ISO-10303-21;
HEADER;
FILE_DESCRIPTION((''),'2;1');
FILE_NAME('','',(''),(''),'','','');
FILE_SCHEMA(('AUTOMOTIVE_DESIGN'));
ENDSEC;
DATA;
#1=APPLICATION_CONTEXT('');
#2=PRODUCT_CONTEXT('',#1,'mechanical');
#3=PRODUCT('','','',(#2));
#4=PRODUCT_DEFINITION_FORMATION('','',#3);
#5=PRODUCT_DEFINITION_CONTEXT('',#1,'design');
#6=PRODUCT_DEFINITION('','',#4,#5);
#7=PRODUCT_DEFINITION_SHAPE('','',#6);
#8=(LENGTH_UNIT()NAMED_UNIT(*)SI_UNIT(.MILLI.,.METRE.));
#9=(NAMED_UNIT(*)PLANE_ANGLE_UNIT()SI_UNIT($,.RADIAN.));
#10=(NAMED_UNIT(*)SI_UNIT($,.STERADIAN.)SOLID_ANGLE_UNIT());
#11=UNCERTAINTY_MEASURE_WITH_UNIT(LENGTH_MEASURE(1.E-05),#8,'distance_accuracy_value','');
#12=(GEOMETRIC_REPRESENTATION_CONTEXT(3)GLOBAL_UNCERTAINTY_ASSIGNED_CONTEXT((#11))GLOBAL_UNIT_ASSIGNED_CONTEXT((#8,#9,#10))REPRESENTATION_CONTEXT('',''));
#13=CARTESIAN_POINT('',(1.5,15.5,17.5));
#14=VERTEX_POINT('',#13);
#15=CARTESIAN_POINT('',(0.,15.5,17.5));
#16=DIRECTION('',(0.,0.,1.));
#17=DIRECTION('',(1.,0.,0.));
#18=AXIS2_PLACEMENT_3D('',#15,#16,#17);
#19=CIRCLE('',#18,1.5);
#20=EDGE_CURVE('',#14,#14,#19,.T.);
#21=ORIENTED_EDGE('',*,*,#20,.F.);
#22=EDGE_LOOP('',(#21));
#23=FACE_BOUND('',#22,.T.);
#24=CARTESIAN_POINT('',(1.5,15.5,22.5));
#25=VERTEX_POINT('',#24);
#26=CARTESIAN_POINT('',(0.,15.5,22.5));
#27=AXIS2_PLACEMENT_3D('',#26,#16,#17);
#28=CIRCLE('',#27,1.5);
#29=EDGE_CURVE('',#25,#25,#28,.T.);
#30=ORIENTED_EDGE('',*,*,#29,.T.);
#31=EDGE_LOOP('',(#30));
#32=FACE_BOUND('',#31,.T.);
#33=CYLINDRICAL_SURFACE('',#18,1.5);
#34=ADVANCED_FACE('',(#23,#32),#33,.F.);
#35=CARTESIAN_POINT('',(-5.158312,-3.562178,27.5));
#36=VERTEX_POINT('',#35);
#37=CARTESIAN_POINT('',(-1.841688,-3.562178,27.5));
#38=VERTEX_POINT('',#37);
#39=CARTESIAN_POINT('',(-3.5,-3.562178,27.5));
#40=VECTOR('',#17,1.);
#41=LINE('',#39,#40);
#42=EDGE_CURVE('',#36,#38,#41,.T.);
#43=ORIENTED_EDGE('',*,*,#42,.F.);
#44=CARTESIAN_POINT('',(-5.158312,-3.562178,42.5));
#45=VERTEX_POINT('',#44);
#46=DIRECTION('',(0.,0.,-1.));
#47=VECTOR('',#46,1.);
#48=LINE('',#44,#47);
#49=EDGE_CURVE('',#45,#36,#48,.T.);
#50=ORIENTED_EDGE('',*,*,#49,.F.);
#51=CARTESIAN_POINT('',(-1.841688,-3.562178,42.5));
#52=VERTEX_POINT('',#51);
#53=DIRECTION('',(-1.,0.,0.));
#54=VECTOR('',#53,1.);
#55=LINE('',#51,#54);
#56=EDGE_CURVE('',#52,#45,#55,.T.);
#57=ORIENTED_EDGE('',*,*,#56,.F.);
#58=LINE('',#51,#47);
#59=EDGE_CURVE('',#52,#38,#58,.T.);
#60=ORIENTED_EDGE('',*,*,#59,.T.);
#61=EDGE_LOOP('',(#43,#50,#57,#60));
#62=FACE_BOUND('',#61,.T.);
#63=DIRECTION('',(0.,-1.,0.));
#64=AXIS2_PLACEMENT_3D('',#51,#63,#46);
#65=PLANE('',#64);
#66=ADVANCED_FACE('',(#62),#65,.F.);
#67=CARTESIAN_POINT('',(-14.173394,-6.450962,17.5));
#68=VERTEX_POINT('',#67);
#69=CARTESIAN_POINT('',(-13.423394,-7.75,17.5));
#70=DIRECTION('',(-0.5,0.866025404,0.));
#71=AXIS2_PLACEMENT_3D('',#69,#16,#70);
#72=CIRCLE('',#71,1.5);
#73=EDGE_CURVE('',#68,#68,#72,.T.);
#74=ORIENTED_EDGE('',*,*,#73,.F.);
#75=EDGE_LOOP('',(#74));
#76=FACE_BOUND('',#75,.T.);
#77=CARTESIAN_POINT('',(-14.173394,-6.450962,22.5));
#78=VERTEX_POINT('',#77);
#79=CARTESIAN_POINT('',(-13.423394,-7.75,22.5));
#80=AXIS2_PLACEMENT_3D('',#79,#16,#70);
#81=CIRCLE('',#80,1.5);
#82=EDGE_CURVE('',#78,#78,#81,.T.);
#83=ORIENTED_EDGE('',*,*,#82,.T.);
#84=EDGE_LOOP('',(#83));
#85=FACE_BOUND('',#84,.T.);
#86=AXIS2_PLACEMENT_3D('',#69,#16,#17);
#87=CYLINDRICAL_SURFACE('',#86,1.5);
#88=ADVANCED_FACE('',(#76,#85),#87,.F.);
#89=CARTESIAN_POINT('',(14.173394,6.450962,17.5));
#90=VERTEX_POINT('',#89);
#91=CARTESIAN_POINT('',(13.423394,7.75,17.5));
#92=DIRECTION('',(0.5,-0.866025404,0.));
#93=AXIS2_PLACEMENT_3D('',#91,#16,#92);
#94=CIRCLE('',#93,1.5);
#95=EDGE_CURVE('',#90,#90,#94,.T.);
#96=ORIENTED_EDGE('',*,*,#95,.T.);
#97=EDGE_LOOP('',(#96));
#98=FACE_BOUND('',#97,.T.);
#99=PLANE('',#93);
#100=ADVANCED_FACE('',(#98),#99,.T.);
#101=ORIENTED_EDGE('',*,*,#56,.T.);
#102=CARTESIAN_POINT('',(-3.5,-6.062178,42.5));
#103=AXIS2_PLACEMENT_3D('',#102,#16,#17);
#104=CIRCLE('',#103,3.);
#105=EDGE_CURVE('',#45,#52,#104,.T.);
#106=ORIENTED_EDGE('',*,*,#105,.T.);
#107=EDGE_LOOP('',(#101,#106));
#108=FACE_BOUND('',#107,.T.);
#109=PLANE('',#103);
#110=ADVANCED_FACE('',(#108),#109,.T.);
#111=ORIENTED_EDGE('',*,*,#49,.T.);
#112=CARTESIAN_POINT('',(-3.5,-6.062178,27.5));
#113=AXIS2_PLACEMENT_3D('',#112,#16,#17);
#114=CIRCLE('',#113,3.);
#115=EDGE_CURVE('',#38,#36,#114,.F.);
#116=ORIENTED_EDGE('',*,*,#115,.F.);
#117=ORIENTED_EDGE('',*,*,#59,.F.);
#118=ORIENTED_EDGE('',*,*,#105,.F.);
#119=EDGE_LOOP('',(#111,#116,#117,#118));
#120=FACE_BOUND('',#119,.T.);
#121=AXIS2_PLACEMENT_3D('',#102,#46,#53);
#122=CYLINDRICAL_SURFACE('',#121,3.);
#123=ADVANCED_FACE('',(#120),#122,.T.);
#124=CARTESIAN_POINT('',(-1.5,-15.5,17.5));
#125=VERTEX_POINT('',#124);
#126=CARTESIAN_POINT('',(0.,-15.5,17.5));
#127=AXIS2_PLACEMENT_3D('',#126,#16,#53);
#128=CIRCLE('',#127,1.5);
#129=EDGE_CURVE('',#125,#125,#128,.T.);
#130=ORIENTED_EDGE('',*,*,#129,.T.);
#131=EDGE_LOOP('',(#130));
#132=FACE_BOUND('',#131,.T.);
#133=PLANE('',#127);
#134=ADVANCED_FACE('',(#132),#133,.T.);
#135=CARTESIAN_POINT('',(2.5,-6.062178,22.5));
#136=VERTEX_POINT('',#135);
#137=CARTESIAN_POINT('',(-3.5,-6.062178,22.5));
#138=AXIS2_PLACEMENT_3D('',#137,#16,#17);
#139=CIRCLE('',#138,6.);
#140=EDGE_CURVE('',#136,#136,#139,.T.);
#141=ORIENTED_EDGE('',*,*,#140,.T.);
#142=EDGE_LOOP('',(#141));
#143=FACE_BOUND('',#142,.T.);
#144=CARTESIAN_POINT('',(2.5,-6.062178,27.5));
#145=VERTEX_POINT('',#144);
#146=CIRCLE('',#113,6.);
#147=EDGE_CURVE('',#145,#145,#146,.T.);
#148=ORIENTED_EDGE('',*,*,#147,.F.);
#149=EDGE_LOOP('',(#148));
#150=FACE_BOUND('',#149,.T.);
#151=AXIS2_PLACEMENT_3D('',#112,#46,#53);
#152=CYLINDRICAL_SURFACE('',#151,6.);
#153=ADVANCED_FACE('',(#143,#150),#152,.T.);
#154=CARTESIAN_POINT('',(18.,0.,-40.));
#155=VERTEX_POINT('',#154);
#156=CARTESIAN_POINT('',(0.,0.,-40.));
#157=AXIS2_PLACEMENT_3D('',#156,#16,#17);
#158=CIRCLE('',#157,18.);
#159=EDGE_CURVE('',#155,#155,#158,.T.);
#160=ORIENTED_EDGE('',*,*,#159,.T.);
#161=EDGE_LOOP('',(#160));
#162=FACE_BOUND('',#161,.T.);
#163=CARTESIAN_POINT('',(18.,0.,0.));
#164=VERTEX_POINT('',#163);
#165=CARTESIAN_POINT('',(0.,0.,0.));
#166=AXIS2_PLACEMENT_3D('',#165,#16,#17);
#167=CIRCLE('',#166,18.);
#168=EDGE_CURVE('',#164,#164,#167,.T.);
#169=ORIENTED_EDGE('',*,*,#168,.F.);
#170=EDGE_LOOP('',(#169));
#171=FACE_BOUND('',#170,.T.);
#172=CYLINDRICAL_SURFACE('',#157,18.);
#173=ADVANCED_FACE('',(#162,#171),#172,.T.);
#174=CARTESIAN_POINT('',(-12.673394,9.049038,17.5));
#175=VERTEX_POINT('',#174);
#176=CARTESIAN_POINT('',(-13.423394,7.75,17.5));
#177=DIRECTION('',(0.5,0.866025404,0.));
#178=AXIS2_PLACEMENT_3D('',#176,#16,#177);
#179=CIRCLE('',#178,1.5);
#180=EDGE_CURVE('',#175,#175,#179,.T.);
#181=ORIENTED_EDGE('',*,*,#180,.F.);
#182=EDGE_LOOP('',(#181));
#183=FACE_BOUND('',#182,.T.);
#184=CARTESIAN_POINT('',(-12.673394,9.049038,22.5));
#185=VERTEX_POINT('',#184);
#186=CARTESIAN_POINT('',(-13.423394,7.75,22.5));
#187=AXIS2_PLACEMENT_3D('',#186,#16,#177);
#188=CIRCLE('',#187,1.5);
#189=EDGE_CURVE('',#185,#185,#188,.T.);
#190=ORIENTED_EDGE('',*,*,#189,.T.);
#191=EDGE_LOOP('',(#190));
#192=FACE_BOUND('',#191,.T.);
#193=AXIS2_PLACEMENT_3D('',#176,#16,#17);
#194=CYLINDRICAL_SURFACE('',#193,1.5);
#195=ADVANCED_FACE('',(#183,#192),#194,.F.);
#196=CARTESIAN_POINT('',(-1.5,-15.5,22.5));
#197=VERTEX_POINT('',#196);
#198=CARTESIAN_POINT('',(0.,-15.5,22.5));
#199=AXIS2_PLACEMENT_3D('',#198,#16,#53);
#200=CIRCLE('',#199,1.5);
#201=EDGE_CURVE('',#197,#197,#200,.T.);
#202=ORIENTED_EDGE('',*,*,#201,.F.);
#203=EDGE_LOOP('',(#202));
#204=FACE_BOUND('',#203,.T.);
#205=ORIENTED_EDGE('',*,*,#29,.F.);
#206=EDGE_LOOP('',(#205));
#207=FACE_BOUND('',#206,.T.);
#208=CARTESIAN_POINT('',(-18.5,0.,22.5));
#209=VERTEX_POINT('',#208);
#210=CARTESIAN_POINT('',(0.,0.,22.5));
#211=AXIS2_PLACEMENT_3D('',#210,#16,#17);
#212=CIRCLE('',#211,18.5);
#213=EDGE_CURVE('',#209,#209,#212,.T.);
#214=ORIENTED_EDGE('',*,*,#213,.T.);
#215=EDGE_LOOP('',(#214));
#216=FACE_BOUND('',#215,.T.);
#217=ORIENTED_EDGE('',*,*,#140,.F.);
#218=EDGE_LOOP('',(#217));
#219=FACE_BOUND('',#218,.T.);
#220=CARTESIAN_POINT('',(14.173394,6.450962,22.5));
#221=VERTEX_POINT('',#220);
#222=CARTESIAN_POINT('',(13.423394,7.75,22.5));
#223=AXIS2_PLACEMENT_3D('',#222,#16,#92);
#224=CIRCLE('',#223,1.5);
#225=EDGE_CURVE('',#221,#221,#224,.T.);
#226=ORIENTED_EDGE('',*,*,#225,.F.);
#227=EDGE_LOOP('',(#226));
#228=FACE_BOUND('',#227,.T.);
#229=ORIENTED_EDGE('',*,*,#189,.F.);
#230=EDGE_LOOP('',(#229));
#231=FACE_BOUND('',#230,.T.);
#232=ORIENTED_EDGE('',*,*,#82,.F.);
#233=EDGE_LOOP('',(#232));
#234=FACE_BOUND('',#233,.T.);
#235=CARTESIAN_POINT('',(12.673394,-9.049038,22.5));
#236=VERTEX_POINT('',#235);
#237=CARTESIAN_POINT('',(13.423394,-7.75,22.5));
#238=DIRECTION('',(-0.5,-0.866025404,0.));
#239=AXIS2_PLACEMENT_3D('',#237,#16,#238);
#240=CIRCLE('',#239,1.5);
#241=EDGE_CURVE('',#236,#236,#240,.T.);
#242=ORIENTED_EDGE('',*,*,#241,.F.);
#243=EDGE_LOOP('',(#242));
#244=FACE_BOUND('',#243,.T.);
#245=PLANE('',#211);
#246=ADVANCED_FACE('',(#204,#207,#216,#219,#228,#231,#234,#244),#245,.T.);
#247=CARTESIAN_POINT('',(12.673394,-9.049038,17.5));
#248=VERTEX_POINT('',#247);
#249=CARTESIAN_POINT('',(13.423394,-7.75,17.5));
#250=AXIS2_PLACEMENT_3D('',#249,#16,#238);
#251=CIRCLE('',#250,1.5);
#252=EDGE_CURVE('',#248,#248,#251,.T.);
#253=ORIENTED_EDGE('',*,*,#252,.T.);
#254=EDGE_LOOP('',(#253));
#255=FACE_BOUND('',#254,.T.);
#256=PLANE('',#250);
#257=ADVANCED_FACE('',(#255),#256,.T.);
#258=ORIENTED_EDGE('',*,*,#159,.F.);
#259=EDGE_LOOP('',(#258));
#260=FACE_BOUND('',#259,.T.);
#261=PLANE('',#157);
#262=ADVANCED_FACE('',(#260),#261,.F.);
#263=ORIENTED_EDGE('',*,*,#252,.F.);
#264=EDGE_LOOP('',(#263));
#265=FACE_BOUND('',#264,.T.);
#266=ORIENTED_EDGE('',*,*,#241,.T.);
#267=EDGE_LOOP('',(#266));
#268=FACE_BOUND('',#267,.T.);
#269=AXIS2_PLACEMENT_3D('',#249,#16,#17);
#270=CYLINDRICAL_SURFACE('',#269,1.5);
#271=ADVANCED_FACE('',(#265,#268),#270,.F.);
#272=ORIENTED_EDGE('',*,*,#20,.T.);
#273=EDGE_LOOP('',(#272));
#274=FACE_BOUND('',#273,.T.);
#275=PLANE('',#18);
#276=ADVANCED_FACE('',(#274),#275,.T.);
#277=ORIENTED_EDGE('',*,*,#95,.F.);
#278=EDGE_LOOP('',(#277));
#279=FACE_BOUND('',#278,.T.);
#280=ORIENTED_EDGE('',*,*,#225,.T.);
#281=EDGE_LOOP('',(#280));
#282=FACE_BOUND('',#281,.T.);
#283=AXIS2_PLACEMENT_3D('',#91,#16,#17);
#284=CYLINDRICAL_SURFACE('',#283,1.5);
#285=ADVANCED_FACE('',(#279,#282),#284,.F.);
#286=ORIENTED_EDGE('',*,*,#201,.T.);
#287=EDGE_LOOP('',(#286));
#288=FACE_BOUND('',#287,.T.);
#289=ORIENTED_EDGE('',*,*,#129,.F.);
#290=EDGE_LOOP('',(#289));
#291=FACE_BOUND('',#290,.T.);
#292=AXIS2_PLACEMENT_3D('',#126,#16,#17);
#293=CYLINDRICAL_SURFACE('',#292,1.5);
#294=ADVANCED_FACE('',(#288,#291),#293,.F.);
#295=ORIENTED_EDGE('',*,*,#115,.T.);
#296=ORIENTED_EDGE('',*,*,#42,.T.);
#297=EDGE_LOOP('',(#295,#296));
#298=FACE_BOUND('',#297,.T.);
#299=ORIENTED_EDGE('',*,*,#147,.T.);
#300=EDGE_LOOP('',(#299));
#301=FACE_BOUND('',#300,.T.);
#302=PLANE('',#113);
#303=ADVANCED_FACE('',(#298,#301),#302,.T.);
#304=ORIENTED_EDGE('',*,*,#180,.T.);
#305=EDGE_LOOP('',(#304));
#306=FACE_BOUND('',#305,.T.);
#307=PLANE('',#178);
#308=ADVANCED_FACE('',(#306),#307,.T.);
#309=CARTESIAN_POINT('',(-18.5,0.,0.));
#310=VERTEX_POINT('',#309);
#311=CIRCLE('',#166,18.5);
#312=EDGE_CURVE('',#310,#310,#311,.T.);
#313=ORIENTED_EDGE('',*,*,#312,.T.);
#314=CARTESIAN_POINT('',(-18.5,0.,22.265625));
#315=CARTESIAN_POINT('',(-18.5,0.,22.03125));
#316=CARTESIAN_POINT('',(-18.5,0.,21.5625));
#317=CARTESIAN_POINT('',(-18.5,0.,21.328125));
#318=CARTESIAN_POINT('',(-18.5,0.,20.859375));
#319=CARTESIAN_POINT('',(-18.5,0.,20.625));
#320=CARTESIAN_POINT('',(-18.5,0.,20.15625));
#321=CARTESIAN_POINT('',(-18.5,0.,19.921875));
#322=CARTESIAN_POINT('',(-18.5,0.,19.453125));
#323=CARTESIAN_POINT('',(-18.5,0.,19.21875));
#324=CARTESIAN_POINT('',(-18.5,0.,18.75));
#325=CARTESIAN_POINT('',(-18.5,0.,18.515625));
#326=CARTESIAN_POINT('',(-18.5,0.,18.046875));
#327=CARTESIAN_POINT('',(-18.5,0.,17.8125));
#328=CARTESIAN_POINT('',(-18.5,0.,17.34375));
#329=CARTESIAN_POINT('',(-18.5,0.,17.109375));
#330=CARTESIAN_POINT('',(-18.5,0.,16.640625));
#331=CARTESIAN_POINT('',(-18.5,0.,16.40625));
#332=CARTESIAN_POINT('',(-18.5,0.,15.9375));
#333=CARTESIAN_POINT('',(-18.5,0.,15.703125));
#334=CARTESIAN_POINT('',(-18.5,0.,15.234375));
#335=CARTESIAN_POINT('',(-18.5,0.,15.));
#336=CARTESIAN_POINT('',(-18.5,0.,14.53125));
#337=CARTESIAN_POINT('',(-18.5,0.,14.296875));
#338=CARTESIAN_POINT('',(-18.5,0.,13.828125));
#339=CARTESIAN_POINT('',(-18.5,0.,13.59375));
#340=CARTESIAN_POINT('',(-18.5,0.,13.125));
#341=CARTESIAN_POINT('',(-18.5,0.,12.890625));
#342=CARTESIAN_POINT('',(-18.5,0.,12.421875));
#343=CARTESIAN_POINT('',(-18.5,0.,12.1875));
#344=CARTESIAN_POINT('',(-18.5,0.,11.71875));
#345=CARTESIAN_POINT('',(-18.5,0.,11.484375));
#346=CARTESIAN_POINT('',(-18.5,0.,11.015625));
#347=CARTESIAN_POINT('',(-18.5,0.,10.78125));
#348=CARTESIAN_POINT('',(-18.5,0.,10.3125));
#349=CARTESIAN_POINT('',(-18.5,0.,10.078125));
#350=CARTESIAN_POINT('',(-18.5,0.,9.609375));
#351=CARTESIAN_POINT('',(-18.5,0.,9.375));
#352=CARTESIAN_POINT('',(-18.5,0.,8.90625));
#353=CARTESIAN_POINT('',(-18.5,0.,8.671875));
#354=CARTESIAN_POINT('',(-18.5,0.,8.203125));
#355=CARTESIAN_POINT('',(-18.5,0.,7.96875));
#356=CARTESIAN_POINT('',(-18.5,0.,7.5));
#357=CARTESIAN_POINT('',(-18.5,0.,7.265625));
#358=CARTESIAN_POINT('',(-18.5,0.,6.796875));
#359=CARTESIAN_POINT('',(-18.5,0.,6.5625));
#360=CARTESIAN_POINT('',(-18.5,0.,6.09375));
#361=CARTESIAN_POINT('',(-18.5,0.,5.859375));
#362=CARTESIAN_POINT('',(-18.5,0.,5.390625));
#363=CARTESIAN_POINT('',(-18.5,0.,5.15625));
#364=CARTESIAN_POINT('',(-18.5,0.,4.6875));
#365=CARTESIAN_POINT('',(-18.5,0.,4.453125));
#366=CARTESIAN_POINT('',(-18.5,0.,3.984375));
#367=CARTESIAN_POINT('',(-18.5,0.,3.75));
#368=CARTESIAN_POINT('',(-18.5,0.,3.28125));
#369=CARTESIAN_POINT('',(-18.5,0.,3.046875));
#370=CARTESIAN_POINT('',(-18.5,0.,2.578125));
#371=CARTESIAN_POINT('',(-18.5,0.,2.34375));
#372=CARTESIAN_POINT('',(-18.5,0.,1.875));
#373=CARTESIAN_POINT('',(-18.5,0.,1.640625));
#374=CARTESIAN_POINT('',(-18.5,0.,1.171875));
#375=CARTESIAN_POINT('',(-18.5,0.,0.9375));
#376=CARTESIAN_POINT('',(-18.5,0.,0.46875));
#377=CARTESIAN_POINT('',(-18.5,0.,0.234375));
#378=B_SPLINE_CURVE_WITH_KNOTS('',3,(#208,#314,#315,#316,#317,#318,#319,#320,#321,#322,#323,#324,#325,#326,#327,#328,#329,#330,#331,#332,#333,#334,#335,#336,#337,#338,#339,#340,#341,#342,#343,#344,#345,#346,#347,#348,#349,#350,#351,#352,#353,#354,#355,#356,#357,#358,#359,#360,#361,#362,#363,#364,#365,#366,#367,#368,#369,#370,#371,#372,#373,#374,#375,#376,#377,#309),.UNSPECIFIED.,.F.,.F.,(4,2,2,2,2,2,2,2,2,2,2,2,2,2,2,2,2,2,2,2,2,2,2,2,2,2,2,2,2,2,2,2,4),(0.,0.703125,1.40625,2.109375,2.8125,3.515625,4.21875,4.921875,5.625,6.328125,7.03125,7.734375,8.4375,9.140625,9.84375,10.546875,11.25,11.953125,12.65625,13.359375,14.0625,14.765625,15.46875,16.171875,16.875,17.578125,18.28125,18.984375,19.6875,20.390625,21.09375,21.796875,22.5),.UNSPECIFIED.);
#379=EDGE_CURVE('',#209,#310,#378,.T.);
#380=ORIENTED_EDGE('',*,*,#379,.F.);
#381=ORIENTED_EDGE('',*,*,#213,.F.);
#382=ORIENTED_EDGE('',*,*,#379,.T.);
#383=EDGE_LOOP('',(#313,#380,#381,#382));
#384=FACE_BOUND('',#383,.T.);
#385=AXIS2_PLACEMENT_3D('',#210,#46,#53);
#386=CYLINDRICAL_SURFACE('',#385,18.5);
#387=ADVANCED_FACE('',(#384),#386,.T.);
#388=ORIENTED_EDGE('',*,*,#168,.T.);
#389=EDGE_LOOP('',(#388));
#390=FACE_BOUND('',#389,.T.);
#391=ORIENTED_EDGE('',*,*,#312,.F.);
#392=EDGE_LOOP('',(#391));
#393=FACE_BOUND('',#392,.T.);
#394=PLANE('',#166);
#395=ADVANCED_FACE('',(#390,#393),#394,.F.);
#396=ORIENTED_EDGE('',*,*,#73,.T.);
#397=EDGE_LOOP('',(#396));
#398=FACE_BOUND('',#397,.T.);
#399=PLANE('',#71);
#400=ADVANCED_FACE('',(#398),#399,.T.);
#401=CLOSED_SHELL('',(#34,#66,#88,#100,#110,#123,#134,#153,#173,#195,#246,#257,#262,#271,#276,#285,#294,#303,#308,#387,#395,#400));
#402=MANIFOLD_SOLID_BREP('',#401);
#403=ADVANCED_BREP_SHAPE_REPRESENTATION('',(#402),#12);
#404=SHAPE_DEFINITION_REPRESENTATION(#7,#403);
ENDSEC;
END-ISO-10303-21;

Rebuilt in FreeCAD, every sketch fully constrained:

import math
import FreeCAD as App
import Part
import Sketcher

V = App.Vector

doc = App.newDocument("Part")
params = doc.addObject("Spreadsheet::Sheet", "Params")
for row, (alias, value) in enumerate([
    ("sketch1_diameter", "36 mm"),
    ("pad1_length", "40 mm"),
    ("sketch2_diameter", "37 mm"),
    ("pad2_length", "22.5 mm"),
    ("sketch3_diameter", "12 mm"),
    ("pad3_length", "5 mm"),
    ("sketch4_radius", "3 mm"),
    ("pad4_length", "20 mm"),
    ("sketch5_diameter", "3 mm"),
    ("pocket1_length", "5 mm"),
], start=1):
    params.set(f"A{row}", alias)
    params.set(f"B{row}", "=" + value)
    params.setAlias(f"B{row}", alias)

body = doc.addObject("PartDesign::Body", "Body")

# Sketch on XY plane
sketch1 = body.newObject("Sketcher::SketchObject", "Sketch")
sketch1.AttachmentSupport = (doc.getObject("XY_Plane"), [""])
sketch1.MapMode = "FlatFace"
sketch1.addGeometry(Part.Circle(V(0, 0, 0), V(0, 0, 1), 18), False)
sketch1.addConstraint(Sketcher.Constraint("Coincident", 0, 3, -1, 1))
sketch1.addConstraint(Sketcher.Constraint("Diameter", 0, 36.0))
sketch1.setExpression("Constraints[1]", "Params.sketch1_diameter")
pad1 = body.newObject("PartDesign::Pad", "Pad")
pad1.Profile = sketch1
pad1.setExpression("Length", "Params.pad1_length")
pad1.Reversed = True

# Sketch on XY plane
sketch2 = body.newObject("Sketcher::SketchObject", "Sketch001")
sketch2.AttachmentSupport = (doc.getObject("XY_Plane"), [""])
sketch2.MapMode = "FlatFace"
sketch2.addGeometry(Part.Circle(V(0, 0, 0), V(0, 0, 1), 18), False)
sketch2.addConstraint(Sketcher.Constraint("Coincident", 0, 3, -1, 1))
sketch2.addConstraint(Sketcher.Constraint("Diameter", 0, 37.0))
sketch2.setExpression("Constraints[1]", "Params.sketch2_diameter")
pad2 = body.newObject("PartDesign::Pad", "Pad001")
pad2.Profile = sketch2
pad2.setExpression("Length", "Params.pad2_length")

# Sketch on XY plane
sketch3 = body.newObject("Sketcher::SketchObject", "Sketch002")
sketch3.AttachmentSupport = (doc.getObject("XY_Plane"), [""])
sketch3.MapMode = "FlatFace"
sketch3.AttachmentOffset = App.Placement(V(0, 0, 22.5), App.Rotation())
sketch3.addGeometry(Part.Circle(V(-4, -6, 0), V(0, 0, 1), 6), False)
sketch3.addConstraint(Sketcher.Constraint("Diameter", 0, 12.0))
sketch3.addConstraint(Sketcher.Constraint("DistanceX", 0, 3, -1, 1, 3.5))
sketch3.addConstraint(Sketcher.Constraint("DistanceY", 0, 3, -1, 1, 6.062178))
sketch3.setExpression("Constraints[0]", "Params.sketch3_diameter")
pad3 = body.newObject("PartDesign::Pad", "Pad002")
pad3.Profile = sketch3
pad3.setExpression("Length", "Params.pad3_length")

# Sketch on XY plane
sketch4 = body.newObject("Sketcher::SketchObject", "Sketch003")
sketch4.AttachmentSupport = (doc.getObject("XY_Plane"), [""])
sketch4.MapMode = "FlatFace"
sketch4.AttachmentOffset = App.Placement(V(0, 0, 22.5), App.Rotation())
sketch4.addGeometry(Part.LineSegment(V(-1.8, -3.6, 0), V(-5.2, -3.6, 0)), False)
sketch4.addGeometry(Part.ArcOfCircle(Part.Circle(V(-3.5, -6.1, 0), V(0, 0, 1), 3), math.radians(124), math.radians(416)), False)
sketch4.addConstraint(Sketcher.Constraint("Coincident", 0, 1, 1, 2))
sketch4.addConstraint(Sketcher.Constraint("Coincident", 1, 1, 0, 2))
sketch4.addConstraint(Sketcher.Constraint("Horizontal", 0))
sketch4.addConstraint(Sketcher.Constraint("Radius", 1, 3.0))
sketch4.addConstraint(Sketcher.Constraint("DistanceX", 1, 3, -1, 1, 3.5))
sketch4.addConstraint(Sketcher.Constraint("DistanceY", 1, 3, 0, 1, 2.5))
sketch4.addConstraint(Sketcher.Constraint("DistanceY", 1, 3, -1, 1, 6.062178))
sketch4.setExpression("Constraints[3]", "Params.sketch4_radius")
pad4 = body.newObject("PartDesign::Pad", "Pad003")
pad4.Profile = sketch4
pad4.setExpression("Length", "Params.pad4_length")

# Sketch on XY plane
sketch5 = body.newObject("Sketcher::SketchObject", "Sketch004")
sketch5.AttachmentSupport = (doc.getObject("XY_Plane"), [""])
sketch5.MapMode = "FlatFace"
sketch5.AttachmentOffset = App.Placement(V(0, 0, 22.5), App.Rotation())
sketch5.addGeometry(Part.Circle(V(0, 15.5, 0), V(0, 0, 1), 1.5), False)
sketch5.addConstraint(Sketcher.Constraint("PointOnObject", 0, 3, -2))
sketch5.addConstraint(Sketcher.Constraint("Diameter", 0, 3.0))
sketch5.addConstraint(Sketcher.Constraint("DistanceY", -1, 1, 0, 3, 15.5))
sketch5.setExpression("Constraints[1]", "Params.sketch5_diameter")
pocket1 = body.newObject("PartDesign::Pocket", "Pocket")
pocket1.Profile = sketch5
pocket1.setExpression("Length", "Params.pocket1_length")
doc.recompute()

polarpattern = body.newObject("PartDesign::PolarPattern", "PolarPattern")
polarpattern.Originals = [pocket1]
polarpattern.Axis = (doc.getObject("Z_Axis"), [""])
polarpattern.Angle = 360
polarpattern.Occurrences = 6
body.Tip = polarpattern

doc.recompute()
